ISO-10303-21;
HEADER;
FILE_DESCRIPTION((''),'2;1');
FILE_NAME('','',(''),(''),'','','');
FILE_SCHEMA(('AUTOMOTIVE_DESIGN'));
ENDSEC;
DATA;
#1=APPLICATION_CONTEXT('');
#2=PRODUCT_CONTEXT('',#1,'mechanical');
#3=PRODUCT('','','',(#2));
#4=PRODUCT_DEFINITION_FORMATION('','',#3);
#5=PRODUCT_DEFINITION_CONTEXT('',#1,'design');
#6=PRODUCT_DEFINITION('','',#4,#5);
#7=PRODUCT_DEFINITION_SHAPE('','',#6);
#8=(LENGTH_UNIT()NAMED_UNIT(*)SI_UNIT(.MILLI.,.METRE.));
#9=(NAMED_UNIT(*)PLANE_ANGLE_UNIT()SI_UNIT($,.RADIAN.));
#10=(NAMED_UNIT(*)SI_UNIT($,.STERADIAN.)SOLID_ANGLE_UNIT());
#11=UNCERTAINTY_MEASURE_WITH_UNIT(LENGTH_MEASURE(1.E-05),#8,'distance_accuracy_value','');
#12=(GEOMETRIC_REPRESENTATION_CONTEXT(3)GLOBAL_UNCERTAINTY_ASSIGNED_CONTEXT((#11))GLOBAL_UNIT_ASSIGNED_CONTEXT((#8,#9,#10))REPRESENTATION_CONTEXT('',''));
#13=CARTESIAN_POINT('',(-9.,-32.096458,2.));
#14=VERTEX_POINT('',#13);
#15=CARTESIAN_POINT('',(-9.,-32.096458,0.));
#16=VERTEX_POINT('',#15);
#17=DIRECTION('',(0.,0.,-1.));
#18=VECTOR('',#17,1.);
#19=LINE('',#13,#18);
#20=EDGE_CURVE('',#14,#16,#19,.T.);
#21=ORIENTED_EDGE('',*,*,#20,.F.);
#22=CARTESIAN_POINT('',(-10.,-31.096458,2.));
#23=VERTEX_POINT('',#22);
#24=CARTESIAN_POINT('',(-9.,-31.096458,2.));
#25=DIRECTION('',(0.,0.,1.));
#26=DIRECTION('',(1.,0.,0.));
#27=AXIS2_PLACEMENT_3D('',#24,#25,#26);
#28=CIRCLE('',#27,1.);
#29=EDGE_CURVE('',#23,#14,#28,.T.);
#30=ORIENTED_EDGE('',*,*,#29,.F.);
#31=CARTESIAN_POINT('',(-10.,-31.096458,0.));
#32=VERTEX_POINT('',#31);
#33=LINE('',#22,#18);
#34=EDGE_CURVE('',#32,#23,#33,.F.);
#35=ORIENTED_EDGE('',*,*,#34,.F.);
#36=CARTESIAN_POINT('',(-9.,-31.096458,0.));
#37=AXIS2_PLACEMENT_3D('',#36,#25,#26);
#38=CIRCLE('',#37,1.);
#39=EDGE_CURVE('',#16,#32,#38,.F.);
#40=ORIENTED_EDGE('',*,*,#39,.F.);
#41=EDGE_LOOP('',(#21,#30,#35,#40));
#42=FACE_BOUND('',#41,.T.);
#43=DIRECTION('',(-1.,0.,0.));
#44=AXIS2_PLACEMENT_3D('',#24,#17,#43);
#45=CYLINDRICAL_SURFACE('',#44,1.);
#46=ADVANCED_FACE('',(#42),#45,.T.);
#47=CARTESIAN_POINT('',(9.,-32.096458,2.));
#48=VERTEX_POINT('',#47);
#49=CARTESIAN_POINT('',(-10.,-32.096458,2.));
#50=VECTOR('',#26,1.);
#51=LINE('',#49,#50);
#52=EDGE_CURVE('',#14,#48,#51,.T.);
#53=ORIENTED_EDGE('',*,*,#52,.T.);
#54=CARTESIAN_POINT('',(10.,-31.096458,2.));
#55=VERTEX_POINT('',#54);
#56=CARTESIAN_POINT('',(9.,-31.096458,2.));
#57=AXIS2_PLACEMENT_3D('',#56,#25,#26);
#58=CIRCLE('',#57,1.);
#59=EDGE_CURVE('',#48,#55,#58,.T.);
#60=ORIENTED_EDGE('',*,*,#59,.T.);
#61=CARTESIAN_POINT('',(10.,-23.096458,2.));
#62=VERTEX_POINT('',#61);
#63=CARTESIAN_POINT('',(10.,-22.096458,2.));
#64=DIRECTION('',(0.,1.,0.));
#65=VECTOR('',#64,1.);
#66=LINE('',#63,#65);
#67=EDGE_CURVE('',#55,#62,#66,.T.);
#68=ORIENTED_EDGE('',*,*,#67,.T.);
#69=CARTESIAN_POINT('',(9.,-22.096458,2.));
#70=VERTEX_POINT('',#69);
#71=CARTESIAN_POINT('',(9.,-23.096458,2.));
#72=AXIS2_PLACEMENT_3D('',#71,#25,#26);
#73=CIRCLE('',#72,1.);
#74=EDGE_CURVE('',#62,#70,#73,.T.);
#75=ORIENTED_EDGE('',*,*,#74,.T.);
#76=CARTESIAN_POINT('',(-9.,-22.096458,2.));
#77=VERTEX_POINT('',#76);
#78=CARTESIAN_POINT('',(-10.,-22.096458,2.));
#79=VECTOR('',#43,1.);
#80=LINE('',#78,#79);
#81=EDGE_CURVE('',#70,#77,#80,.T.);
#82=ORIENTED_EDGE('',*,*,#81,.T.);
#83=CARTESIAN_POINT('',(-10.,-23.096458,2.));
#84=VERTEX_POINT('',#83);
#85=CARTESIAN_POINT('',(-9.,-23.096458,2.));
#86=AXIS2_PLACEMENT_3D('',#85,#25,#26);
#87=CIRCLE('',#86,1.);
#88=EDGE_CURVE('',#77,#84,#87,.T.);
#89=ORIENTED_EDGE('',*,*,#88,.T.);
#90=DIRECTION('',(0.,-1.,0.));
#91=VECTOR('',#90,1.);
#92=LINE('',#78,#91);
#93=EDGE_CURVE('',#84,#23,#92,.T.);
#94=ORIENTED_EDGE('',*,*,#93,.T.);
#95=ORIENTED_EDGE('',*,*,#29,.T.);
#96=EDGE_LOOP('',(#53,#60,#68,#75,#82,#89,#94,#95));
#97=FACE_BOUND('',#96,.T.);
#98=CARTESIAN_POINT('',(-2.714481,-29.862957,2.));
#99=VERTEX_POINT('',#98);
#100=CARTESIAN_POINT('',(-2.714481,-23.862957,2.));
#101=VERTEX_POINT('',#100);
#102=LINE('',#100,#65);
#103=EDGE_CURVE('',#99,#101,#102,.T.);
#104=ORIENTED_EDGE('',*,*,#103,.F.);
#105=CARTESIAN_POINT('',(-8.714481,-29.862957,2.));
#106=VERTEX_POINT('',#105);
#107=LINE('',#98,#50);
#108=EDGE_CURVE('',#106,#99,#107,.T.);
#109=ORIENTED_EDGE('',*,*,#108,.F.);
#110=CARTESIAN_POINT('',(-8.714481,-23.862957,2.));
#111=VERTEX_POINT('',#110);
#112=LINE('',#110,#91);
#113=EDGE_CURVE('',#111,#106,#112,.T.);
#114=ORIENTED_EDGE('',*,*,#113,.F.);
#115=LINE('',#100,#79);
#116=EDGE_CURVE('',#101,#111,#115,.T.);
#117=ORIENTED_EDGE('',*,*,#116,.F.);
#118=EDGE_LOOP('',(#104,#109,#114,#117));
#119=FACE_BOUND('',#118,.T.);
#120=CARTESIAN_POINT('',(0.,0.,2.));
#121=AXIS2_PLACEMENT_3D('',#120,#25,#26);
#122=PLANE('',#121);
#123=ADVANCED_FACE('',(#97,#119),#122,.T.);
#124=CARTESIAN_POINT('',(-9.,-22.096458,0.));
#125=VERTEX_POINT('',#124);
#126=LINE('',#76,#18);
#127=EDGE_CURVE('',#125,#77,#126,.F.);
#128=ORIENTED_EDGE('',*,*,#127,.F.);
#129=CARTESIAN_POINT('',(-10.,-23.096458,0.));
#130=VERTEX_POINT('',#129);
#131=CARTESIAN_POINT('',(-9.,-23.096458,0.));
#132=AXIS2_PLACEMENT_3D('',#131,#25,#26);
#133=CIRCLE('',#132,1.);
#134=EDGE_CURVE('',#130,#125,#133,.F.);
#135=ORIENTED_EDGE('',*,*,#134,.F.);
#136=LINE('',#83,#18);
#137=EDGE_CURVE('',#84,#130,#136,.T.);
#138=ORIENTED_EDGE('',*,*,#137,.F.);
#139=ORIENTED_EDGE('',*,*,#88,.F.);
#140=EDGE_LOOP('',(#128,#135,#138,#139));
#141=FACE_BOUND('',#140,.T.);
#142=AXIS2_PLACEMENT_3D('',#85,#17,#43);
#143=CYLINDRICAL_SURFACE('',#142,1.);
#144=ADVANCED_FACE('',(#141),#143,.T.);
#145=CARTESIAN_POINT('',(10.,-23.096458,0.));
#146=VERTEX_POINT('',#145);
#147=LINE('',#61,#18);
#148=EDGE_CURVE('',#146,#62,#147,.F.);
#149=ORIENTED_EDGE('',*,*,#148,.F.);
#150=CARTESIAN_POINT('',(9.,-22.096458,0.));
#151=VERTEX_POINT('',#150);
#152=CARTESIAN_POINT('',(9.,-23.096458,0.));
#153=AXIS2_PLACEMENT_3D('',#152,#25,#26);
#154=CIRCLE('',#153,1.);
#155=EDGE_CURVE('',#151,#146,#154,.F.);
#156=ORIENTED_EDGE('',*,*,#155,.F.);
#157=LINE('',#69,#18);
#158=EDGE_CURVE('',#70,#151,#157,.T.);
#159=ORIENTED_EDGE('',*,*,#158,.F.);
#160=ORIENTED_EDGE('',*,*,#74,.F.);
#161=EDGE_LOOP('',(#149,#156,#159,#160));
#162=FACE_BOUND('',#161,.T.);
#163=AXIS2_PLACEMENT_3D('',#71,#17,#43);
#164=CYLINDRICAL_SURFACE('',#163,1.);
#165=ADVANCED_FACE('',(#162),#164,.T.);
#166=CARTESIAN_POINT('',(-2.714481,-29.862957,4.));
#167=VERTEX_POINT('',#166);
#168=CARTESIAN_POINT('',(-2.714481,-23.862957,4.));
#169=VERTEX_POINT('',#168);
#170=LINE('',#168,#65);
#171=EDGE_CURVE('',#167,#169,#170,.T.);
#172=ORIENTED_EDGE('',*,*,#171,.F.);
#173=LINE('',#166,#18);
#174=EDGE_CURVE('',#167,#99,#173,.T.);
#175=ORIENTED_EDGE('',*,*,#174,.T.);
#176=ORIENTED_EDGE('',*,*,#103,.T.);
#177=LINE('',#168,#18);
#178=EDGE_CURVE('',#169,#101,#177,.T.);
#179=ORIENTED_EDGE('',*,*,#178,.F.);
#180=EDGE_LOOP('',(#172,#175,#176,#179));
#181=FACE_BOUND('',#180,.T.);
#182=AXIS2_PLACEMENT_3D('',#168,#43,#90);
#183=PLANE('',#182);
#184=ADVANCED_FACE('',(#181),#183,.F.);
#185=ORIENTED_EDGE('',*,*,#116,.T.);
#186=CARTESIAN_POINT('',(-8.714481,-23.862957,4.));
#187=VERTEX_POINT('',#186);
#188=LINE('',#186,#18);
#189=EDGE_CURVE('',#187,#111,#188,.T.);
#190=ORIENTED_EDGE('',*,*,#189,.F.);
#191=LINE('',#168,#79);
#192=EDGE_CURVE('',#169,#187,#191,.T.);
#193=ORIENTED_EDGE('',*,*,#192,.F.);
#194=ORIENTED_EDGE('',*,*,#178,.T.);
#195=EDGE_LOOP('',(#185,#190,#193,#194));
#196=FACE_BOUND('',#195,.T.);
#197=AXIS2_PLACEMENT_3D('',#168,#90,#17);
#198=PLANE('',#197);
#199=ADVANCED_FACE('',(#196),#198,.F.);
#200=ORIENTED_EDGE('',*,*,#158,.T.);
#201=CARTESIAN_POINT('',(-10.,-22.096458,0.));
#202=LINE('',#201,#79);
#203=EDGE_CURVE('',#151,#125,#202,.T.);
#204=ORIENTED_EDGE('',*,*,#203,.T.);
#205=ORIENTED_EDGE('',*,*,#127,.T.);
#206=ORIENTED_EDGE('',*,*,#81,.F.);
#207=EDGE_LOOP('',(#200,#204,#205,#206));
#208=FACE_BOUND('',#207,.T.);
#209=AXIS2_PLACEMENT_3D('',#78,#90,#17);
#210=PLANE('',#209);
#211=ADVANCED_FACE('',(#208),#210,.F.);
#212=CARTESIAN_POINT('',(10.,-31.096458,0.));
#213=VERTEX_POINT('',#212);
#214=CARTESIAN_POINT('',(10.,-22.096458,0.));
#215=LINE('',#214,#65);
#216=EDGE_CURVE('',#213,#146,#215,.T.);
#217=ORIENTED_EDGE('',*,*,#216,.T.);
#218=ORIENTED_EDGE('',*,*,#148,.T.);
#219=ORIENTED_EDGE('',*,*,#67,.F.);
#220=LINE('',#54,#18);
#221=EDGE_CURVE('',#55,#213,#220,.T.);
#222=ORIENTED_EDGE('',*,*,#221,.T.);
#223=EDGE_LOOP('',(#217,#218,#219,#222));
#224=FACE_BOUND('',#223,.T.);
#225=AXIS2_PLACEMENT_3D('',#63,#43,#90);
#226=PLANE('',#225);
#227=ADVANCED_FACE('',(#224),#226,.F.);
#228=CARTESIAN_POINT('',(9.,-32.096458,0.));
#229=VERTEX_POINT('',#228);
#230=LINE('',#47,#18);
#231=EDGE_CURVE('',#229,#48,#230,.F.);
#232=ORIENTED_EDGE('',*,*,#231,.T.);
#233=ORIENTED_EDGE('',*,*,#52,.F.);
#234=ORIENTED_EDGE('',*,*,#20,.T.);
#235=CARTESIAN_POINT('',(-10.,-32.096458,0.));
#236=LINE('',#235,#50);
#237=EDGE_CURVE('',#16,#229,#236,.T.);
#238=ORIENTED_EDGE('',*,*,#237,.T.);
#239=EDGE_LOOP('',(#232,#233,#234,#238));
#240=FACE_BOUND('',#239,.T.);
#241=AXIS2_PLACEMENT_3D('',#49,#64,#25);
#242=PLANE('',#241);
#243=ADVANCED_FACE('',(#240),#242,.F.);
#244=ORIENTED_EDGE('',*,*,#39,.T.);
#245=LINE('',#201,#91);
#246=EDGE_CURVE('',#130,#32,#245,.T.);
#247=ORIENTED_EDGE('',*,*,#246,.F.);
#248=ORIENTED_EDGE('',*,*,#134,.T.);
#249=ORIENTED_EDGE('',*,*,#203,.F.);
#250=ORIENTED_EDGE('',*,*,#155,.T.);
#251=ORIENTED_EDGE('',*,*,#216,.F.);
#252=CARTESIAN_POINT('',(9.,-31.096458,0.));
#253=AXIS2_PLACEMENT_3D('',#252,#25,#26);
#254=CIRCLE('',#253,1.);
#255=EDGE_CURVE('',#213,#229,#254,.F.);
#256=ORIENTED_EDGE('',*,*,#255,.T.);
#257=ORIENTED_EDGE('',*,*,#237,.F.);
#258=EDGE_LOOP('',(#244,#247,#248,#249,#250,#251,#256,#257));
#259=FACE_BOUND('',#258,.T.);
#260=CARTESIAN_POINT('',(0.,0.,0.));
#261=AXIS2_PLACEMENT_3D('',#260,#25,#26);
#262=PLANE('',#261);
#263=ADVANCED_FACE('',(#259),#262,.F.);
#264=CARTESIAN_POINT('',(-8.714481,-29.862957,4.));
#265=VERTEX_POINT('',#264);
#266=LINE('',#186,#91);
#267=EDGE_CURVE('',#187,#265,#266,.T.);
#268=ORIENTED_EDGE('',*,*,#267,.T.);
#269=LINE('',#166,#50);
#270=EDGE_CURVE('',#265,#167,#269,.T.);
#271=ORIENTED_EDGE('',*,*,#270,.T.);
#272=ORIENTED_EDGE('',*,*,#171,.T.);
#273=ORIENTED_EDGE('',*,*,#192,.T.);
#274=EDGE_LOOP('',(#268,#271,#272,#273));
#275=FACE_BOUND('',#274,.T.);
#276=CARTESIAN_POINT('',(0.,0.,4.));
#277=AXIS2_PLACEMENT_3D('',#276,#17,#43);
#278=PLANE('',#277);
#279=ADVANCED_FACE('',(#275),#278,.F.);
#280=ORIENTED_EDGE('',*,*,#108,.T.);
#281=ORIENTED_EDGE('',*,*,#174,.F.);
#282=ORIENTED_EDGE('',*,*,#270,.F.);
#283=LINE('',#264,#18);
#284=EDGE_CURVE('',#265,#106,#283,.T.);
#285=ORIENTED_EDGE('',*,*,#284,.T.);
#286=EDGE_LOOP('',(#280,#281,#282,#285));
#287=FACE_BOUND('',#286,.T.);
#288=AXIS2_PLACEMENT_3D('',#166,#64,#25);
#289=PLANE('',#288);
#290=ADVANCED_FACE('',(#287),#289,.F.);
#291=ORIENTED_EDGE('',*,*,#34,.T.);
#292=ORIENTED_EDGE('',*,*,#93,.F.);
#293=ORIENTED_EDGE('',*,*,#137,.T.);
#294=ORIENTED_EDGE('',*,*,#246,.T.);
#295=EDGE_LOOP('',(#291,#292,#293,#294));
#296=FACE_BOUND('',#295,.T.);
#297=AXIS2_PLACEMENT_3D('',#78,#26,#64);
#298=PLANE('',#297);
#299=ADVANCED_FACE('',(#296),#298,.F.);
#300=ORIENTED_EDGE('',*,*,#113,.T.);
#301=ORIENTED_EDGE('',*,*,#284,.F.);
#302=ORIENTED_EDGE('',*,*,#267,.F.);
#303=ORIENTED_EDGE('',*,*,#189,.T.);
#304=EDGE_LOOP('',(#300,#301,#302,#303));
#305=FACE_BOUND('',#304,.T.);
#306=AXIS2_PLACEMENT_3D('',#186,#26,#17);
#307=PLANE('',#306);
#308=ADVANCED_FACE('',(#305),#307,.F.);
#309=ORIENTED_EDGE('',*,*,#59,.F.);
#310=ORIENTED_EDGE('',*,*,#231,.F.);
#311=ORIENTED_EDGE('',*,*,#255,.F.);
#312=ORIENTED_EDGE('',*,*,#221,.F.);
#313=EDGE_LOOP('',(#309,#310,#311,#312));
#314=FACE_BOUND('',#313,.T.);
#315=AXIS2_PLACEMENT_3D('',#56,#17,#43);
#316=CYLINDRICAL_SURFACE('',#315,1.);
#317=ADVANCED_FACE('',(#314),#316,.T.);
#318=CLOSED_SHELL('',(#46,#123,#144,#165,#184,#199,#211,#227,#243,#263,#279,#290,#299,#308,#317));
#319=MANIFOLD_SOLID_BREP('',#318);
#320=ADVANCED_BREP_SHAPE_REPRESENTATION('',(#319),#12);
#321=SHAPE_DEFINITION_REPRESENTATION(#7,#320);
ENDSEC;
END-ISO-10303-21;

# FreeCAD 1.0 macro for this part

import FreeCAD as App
import Part
import Sketcher

V = App.Vector
Q = App.Units.Quantity


def edges_at(feature, points):
    """Names of the edges that pass closest to the given points."""
    edges = feature.Shape.Edges
    near = lambda p: min(range(len(edges)), key=lambda i: edges[i].distToShape(Part.Vertex(*p))[0])
    return sorted({f"Edge{near(p) + 1}" for p in points})

doc = App.newDocument("Part")
body = doc.addObject("PartDesign::Body", "Body")

# Sketch on XY plane
sketch1 = body.newObject("Sketcher::SketchObject", "Sketch")
sketch1.AttachmentSupport = (doc.getObject("XY_Plane"), [""])
sketch1.MapMode = "FlatFace"
sketch1.addGeometry([
    Part.LineSegment(V(-10, -22, 0), V(-10, -32, 0)),
    Part.LineSegment(V(-10, -32, 0), V(10, -32, 0)),
    Part.LineSegment(V(10, -32, 0), V(10, -22, 0)),
    Part.LineSegment(V(10, -22, 0), V(-10, -22, 0)),
], False)
sketch1.addConstraint([
    Sketcher.Constraint("Coincident", 0, 2, 1, 1),
    Sketcher.Constraint("Coincident", 1, 2, 2, 1),
    Sketcher.Constraint("Coincident", 2, 2, 3, 1),
    Sketcher.Constraint("Coincident", 3, 2, 0, 1),
    Sketcher.Constraint("Vertical", 0),
    Sketcher.Constraint("Horizontal", 1),
    Sketcher.Constraint("Vertical", 2),
    Sketcher.Constraint("Horizontal", 3),
    Sketcher.Constraint("DistanceX", 1, 1, 1, 2, Q("20 mm")),
    Sketcher.Constraint("DistanceY", 0, 2, 0, 1, Q("10 mm")),
    Sketcher.Constraint("DistanceX", 0, 2, -1, 1, Q("10 mm")),
    Sketcher.Constraint("DistanceY", 0, 2, -1, 1, Q("32.096458 mm")),
])
pad1 = body.newObject("PartDesign::Pad", "Pad")
pad1.Profile = sketch1
pad1.Length = 2
doc.recompute()

fillet = body.newObject("PartDesign::Fillet", "Fillet")
fillet.Base = (pad1, edges_at(pad1, [
    (-10, -22.096, 1),
    (10, -22.096, 1),
    (10, -32.096, 1),
    (-10, -32.096, 1),
]))
fillet.Radius = 1

# Sketch on XY plane
sketch2 = body.newObject("Sketcher::SketchObject", "Sketch001")
sketch2.AttachmentSupport = (doc.getObject("XY_Plane"), [""])
sketch2.MapMode = "FlatFace"
sketch2.AttachmentOffset = App.Placement(V(0, 0, 2), App.Rotation())
sketch2.addGeometry([
    Part.LineSegment(V(-9, -24, 0), V(-9, -30, 0)),
    Part.LineSegment(V(-9, -30, 0), V(-3, -30, 0)),
    Part.LineSegment(V(-3, -30, 0), V(-3, -24, 0)),
    Part.LineSegment(V(-3, -24, 0), V(-9, -24, 0)),
], False)
sketch2.addConstraint([
    Sketcher.Constraint("Coincident", 0, 2, 1, 1),
    Sketcher.Constraint("Coincident", 1, 2, 2, 1),
    Sketcher.Constraint("Coincident", 2, 2, 3, 1),
    Sketcher.Constraint("Coincident", 3, 2, 0, 1),
    Sketcher.Constraint("Vertical", 0),
    Sketcher.Constraint("Horizontal", 1),
    Sketcher.Constraint("Vertical", 2),
    Sketcher.Constraint("Horizontal", 3),
    Sketcher.Constraint("Equal", 3, 0),
    Sketcher.Constraint("DistanceX", 1, 1, 1, 2, Q("6 mm")),
    Sketcher.Constraint("DistanceX", 0, 2, -1, 1, Q("8.714481 mm")),
    Sketcher.Constraint("DistanceY", 0, 2, -1, 1, Q("29.862957 mm")),
])
pad2 = body.newObject("PartDesign::Pad", "Pad001")
pad2.Profile = sketch2
pad2.Length = 2

doc.recompute()
